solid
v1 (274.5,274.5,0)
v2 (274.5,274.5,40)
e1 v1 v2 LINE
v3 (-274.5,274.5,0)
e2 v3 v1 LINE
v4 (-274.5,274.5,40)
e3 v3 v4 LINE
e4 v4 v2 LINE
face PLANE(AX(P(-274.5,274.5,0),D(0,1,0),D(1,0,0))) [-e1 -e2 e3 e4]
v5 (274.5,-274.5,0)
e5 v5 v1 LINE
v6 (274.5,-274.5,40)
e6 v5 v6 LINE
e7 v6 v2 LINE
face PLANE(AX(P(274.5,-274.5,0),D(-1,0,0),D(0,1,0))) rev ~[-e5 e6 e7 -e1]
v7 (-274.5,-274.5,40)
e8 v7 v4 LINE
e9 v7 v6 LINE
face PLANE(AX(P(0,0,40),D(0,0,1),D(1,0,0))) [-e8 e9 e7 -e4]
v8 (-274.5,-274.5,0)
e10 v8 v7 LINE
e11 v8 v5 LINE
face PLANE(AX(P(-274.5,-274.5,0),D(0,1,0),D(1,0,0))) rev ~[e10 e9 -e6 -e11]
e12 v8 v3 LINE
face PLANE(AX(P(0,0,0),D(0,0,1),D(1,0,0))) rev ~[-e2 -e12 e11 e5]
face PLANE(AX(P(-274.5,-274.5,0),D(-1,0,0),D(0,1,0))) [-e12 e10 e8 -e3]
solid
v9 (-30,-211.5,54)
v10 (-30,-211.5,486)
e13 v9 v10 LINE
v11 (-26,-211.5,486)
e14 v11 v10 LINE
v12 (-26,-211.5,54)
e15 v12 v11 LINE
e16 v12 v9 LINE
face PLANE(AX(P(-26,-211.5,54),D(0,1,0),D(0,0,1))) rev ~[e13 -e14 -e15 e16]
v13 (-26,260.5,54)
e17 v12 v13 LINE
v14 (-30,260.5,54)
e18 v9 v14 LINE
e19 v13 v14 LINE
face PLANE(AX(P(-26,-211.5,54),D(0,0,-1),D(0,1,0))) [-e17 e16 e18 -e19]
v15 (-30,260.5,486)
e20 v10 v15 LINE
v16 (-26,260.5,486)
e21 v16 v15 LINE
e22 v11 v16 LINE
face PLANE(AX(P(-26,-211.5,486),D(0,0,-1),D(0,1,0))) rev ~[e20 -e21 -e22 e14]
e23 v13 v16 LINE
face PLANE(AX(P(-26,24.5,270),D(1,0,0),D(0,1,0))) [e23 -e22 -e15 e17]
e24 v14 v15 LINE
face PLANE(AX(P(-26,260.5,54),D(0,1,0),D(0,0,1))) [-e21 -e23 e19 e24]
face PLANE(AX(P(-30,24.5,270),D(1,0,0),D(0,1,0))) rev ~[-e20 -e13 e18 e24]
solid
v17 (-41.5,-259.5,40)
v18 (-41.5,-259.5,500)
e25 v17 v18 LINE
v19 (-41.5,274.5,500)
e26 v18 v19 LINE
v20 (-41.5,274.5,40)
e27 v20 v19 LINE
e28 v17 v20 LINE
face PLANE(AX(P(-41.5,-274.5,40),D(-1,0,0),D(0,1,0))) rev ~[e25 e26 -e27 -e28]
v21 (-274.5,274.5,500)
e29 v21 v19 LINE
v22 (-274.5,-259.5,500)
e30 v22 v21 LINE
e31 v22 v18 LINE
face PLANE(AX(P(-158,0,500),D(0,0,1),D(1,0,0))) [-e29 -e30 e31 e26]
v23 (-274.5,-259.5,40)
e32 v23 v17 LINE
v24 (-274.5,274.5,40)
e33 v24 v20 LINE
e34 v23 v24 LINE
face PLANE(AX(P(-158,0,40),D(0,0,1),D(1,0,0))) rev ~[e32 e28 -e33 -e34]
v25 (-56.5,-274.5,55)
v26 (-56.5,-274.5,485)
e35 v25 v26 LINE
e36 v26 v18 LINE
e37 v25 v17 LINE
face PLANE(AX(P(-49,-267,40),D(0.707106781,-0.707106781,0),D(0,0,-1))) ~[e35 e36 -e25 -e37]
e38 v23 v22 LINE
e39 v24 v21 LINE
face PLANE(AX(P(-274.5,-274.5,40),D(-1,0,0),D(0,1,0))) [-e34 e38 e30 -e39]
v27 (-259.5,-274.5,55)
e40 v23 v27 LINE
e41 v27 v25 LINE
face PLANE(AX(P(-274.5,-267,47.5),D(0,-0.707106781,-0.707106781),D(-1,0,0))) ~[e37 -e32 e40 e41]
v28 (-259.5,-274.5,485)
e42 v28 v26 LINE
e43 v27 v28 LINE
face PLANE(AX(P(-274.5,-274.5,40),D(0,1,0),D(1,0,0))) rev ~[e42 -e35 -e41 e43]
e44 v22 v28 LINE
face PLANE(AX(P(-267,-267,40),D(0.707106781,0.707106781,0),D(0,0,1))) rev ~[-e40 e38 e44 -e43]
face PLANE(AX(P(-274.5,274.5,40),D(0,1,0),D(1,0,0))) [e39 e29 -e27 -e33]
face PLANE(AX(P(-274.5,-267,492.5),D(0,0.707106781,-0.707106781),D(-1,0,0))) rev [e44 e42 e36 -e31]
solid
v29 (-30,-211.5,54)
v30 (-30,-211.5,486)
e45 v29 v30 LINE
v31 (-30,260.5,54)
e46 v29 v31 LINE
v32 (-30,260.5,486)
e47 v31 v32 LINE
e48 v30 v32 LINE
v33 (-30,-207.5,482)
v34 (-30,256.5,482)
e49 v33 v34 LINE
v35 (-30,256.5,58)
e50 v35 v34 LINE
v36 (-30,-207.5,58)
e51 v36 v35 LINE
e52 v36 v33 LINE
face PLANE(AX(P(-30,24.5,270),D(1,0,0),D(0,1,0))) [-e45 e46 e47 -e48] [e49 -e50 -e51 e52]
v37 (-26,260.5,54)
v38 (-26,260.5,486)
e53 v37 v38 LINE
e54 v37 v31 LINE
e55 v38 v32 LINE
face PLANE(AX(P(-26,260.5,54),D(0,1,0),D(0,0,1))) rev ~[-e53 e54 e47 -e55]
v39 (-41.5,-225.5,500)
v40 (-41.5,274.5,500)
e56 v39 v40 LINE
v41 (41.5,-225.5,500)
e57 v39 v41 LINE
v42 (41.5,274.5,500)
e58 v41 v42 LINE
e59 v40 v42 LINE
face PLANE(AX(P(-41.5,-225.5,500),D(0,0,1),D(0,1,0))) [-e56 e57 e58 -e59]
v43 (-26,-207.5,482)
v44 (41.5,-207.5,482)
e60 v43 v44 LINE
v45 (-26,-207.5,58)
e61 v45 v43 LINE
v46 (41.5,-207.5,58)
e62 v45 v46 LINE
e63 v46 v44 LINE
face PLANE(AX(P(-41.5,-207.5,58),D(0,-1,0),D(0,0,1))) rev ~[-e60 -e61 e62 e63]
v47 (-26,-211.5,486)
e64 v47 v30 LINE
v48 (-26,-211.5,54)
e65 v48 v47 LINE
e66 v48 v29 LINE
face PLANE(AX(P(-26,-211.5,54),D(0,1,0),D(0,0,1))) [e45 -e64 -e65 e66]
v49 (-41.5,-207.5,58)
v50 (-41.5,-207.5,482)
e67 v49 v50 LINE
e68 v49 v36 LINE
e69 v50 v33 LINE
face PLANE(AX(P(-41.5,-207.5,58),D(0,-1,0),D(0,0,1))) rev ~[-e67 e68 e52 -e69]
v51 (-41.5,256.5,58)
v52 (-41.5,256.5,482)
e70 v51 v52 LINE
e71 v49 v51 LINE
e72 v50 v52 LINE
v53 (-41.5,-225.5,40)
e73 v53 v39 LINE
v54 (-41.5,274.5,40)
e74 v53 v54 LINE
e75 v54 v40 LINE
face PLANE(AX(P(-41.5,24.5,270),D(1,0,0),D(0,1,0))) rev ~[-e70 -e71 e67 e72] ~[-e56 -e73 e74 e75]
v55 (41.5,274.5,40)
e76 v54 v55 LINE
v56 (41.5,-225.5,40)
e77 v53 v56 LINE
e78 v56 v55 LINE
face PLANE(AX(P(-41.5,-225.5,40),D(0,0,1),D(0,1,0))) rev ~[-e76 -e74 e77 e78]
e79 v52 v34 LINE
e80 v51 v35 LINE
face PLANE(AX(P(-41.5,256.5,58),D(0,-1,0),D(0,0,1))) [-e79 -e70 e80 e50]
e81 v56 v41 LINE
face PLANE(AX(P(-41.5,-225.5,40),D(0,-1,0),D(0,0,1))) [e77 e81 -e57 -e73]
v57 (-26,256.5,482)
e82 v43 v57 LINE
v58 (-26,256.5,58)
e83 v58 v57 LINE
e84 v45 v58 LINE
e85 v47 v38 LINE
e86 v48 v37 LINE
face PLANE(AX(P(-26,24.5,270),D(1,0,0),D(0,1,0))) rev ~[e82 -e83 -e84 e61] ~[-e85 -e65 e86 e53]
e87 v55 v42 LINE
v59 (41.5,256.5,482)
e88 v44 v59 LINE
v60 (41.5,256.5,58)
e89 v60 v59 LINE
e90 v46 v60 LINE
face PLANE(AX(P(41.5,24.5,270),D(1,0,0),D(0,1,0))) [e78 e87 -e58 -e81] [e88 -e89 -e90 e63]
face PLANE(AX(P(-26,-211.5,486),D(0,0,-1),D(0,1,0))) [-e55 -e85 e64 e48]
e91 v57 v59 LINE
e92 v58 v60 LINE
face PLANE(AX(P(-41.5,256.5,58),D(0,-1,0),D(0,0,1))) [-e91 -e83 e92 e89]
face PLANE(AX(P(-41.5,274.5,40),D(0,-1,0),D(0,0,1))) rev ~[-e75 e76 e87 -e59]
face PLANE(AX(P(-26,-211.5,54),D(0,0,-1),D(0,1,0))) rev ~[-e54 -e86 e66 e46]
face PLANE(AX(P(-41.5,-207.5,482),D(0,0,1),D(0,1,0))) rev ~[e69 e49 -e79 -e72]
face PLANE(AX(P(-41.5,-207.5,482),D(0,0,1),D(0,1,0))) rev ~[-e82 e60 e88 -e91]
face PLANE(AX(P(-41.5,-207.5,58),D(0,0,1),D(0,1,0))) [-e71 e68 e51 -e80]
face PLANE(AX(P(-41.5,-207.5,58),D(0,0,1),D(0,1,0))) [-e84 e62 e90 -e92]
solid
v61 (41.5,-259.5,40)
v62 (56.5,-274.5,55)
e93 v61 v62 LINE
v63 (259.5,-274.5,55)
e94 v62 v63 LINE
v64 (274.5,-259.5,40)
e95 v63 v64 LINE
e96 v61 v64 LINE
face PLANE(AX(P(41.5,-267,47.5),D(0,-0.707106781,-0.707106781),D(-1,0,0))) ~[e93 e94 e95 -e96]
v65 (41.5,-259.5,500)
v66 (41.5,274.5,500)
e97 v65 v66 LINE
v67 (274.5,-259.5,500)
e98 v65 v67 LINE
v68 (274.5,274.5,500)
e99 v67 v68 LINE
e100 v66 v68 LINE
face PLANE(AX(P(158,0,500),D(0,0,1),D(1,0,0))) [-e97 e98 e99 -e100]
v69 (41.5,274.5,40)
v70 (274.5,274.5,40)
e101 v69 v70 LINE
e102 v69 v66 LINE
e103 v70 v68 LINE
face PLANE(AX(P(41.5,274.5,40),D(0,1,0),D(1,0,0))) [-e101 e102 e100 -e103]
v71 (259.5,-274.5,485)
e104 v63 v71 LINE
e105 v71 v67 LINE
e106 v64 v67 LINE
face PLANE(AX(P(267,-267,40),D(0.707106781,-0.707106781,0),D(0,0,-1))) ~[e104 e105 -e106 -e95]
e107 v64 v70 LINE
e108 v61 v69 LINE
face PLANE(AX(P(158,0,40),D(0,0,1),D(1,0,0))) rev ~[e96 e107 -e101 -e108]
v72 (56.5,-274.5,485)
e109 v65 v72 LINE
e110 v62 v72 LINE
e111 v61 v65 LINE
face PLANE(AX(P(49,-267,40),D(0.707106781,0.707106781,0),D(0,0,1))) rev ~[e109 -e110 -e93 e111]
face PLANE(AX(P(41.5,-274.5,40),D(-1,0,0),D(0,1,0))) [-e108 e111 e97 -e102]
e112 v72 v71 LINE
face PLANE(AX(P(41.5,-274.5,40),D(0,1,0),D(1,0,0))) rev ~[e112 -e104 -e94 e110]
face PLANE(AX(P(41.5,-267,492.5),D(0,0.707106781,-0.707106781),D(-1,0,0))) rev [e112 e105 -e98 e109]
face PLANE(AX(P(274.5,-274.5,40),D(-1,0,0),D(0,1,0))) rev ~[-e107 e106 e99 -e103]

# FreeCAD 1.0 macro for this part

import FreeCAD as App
import Part
import Sketcher

V = App.Vector


def edges_at(feature, points):
    """Names of the edges that pass closest to the given points."""
    edges = feature.Shape.Edges
    near = lambda p: min(range(len(edges)), key=lambda i: edges[i].distToShape(Part.Vertex(*p))[0])
    return sorted({f"Edge{near(p) + 1}" for p in points})


def add_polygon(sketch, points):
    """Adds a closed chain of lines whose ends are joined by coincident constraints."""
    first, n = sketch.GeometryCount, len(points)
    for a, b in zip(points, points[1:] + points[:1]):
        sketch.addGeometry(Part.LineSegment(App.Vector(*a, 0), App.Vector(*b, 0)), False)
    for i in range(n):
        sketch.addConstraint(Sketcher.Constraint("Coincident", first + i, 2, first + (i + 1) % n, 1))

doc = App.newDocument("Part")
params = doc.addObject("Spreadsheet::Sheet", "Params")
for row, (alias, value) in enumerate([
    ("sketch1_width", "549 mm"),
    ("pad1_length", "40 mm"),
    ("sketch2_width", "233 mm"),
    ("sketch2_height", "549 mm"),
    ("pad2_length", "460 mm"),
    ("chamfer_size", "15 mm"),
    ("sketch3_width", "500 mm"),
    ("sketch3_width2", "464 mm"),
    ("sketch3_height", "460 mm"),
    ("sketch3_height2", "424 mm"),
    ("pad3_length", "83 mm"),
    ("sketch4_width", "472 mm"),
    ("sketch4_height", "432 mm"),
    ("pad4_length", "4 mm"),
], start=1):
    params.set(f"A{row}", alias)
    params.set(f"B{row}", "=" + value)
    params.setAlias(f"B{row}", alias)

body = doc.addObject("PartDesign::Body", "Body")

# Sketch on XY plane
sketch1 = doc.addObject("Sketcher::SketchObject", "Sketch")
body.addObject(sketch1)
sketch1.AttachmentSupport = (doc.XY_Plane, [""])
sketch1.MapMode = "FlatFace"
add_polygon(sketch1, [(-274, 274), (-274, -274), (274, -274), (274, 274)])  # lines 0-3
sketch1.addConstraint(Sketcher.Constraint("Vertical", 0))
sketch1.addConstraint(Sketcher.Constraint("Horizontal", 1))
sketch1.addConstraint(Sketcher.Constraint("Vertical", 2))
sketch1.addConstraint(Sketcher.Constraint("Horizontal", 3))
sketch1.addConstraint(Sketcher.Constraint("Symmetric", 0, 2, 2, 2, -1, 1))
sketch1.addConstraint(Sketcher.Constraint("Equal", 3, 0))
sketch1.addConstraint(Sketcher.Constraint("DistanceX", 1, 1, 1, 2, 549.0))
sketch1.setExpression("Constraints[10]", "Params.sketch1_width")
pad1 = doc.addObject("PartDesign::Pad", "Pad")
body.addObject(pad1)
pad1.Profile = sketch1
pad1.setExpression("Length", "Params.pad1_length")
body2 = doc.addObject("PartDesign::Body", "Body001")
body2.AllowCompound = True

# Sketch on XY plane
sketch2 = doc.addObject("Sketcher::SketchObject", "Sketch001")
body2.addObject(sketch2)
sketch2.AttachmentSupport = (doc.getObject("XY_Plane001"), [""])
sketch2.MapMode = "FlatFace"
sketch2.AttachmentOffset = App.Placement(V(0, 0, 40), App.Rotation())
add_polygon(sketch2, [(-274, 274), (-274, -274), (-42, -274), (-42, 274)])  # lines 0-3
add_polygon(sketch2, [(42, 274), (42, -274), (274, -274), (274, 274)])  # lines 4-7
sketch2.addConstraint(Sketcher.Constraint("Vertical", 0))
sketch2.addConstraint(Sketcher.Constraint("Horizontal", 1))
sketch2.addConstraint(Sketcher.Constraint("Vertical", 2))
sketch2.addConstraint(Sketcher.Constraint("Horizontal", 3))
sketch2.addConstraint(Sketcher.Constraint("Vertical", 4))
sketch2.addConstraint(Sketcher.Constraint("Horizontal", 5))
sketch2.addConstraint(Sketcher.Constraint("Vertical", 6))
sketch2.addConstraint(Sketcher.Constraint("Horizontal", 7))
sketch2.addConstraint(Sketcher.Constraint("Symmetric", 2, 2, 4, 2, -1, 1))
sketch2.addConstraint(Sketcher.Constraint("Symmetric", 0, 2, 6, 2, -1, 1))
sketch2.addConstraint(Sketcher.Constraint("Horizontal", 1, 2, 4, 2))
sketch2.addConstraint(Sketcher.Constraint("DistanceX", 1, 1, 1, 2, 233.0))
sketch2.addConstraint(Sketcher.Constraint("DistanceY", 0, 2, 0, 1, 549.0))
sketch2.addConstraint(Sketcher.Constraint("DistanceX", 1, 2, 4, 2, 83.0))
sketch2.setExpression("Constraints[19]", "Params.sketch2_width")
sketch2.setExpression("Constraints[20]", "Params.sketch2_height")
pad2 = doc.addObject("PartDesign::Pad", "Pad001")
body2.addObject(pad2)
pad2.Profile = sketch2
pad2.setExpression("Length", "Params.pad2_length")
doc.recompute()

chamfer = doc.addObject("PartDesign::Chamfer", "Chamfer")
body2.addObject(chamfer)
chamfer.Base = (pad2, edges_at(pad2, [
    (41.5, -274.5, 270),
    (274.5, -274.5, 270),
    (158, -274.5, 40),
    (158, -274.5, 500),
    (-274.5, -274.5, 270),
    (-41.5, -274.5, 270),
    (-158, -274.5, 40),
    (-158, -274.5, 500),
]))
chamfer.setExpression("Size", "Params.chamfer_size")
body3 = doc.addObject("PartDesign::Body", "Body002")

# Sketch on YZ plane
sketch3 = doc.addObject("Sketcher::SketchObject", "Sketch002")
body3.addObject(sketch3)
sketch3.AttachmentSupport = (doc.getObject("YZ_Plane002"), [""])
sketch3.MapMode = "FlatFace"
sketch3.AttachmentOffset = App.Placement(V(0, 0, -41.5), App.Rotation())
add_polygon(sketch3, [(-226, 500), (-226, 40), (274, 40), (274, 500)])  # lines 0-3
add_polygon(sketch3, [(256, 58), (-208, 58), (-208, 482), (256, 482)])  # lines 4-7
sketch3.addConstraint(Sketcher.Constraint("Vertical", 0))
sketch3.addConstraint(Sketcher.Constraint("Horizontal", 1))
sketch3.addConstraint(Sketcher.Constraint("Vertical", 2))
sketch3.addConstraint(Sketcher.Constraint("Horizontal", 3))
sketch3.addConstraint(Sketcher.Constraint("Horizontal", 4))
sketch3.addConstraint(Sketcher.Constraint("Vertical", 5))
sketch3.addConstraint(Sketcher.Constraint("Horizontal", 6))
sketch3.addConstraint(Sketcher.Constraint("Vertical", 7))
sketch3.addConstraint(Sketcher.Constraint("DistanceX", 1, 1, 1, 2, 500.0))
sketch3.addConstraint(Sketcher.Constraint("DistanceX", 4, 2, 4, 1, 464.0))
sketch3.addConstraint(Sketcher.Constraint("DistanceY", 0, 2, 0, 1, 460.0))
sketch3.addConstraint(Sketcher.Constraint("DistanceY", 5, 1, 5, 2, 424.0))
sketch3.addConstraint(Sketcher.Constraint("DistanceY", -1, 1, 0, 2, 40.0))
sketch3.addConstraint(Sketcher.Constraint("DistanceY", -1, 1, 4, 2, 58.0))
sketch3.addConstraint(Sketcher.Constraint("DistanceX", 0, 2, 4, 2, 18.0))
sketch3.addConstraint(Sketcher.Constraint("DistanceX", 0, 2, -1, 1, 225.5))
sketch3.setExpression("Constraints[16]", "Params.sketch3_width")
sketch3.setExpression("Constraints[17]", "Params.sketch3_width2")
sketch3.setExpression("Constraints[18]", "Params.sketch3_height")
sketch3.setExpression("Constraints[19]", "Params.sketch3_height2")
pad3 = doc.addObject("PartDesign::Pad", "Pad002")
body3.addObject(pad3)
pad3.Profile = sketch3
pad3.setExpression("Length", "Params.pad3_length")
body4 = doc.addObject("PartDesign::Body", "Body003")

# Sketch on YZ plane
sketch4 = doc.addObject("Sketcher::SketchObject", "Sketch003")
body4.addObject(sketch4)
sketch4.AttachmentSupport = (doc.getObject("YZ_Plane003"), [""])
sketch4.MapMode = "FlatFace"
sketch4.AttachmentOffset = App.Placement(V(0, 0, -26), App.Rotation())
add_polygon(sketch4, [(-212, 486), (-212, 54), (260, 54), (260, 486)])  # lines 0-3
sketch4.addConstraint(Sketcher.Constraint("Vertical", 0))
sketch4.addConstraint(Sketcher.Constraint("Horizontal", 1))
sketch4.addConstraint(Sketcher.Constraint("Vertical", 2))
sketch4.addConstraint(Sketcher.Constraint("Horizontal", 3))
sketch4.addConstraint(Sketcher.Constraint("DistanceX", 1, 1, 1, 2, 472.0))
sketch4.addConstraint(Sketcher.Constraint("DistanceY", 0, 2, 0, 1, 432.0))
sketch4.addConstraint(Sketcher.Constraint("DistanceY", -1, 1, 0, 2, 54.0))
sketch4.addConstraint(Sketcher.Constraint("DistanceX", 0, 2, -1, 1, 211.5))
sketch4.setExpression("Constraints[8]", "Params.sketch4_width")
sketch4.setExpression("Constraints[9]", "Params.sketch4_height")
pad4 = doc.addObject("PartDesign::Pad", "Pad003")
body4.addObject(pad4)
pad4.Profile = sketch4
pad4.setExpression("Length", "Params.pad4_length")
pad4.Reversed = True
doc.recompute()

body5 = doc.addObject("PartDesign::Body", "Body004")
body5.BaseFeature = body4
boolean = doc.addObject("PartDesign::Boolean", "Boolean")
body3.addObject(boolean)
boolean.Type = "Cut"
boolean.addObjects([body5])
doc.recompute()

doc.recompute()
